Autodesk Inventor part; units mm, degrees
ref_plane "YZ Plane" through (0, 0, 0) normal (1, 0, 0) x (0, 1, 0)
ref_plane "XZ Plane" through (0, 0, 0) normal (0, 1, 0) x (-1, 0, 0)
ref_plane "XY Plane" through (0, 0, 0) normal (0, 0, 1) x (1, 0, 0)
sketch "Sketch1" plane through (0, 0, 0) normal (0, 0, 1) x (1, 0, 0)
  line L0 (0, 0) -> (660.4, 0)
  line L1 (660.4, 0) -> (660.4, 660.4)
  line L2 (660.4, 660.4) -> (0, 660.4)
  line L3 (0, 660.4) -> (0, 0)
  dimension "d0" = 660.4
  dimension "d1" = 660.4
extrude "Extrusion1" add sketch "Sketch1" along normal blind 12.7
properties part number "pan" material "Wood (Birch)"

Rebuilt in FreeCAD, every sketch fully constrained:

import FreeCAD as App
import Part
import Sketcher
Q = App.Units.Quantity


def add_polygon(sketch, points):
    """Adds a closed chain of lines whose ends are joined by coincident constraints."""
    first, n = sketch.GeometryCount, len(points)
    for a, b in zip(points, points[1:] + points[:1]):
        sketch.addGeometry(Part.LineSegment(App.Vector(*a, 0), App.Vector(*b, 0)), False)
    for i in range(n):
        sketch.addConstraint(Sketcher.Constraint("Coincident", first + i, 2, first + (i + 1) % n, 1))

doc = App.newDocument("Part")
body = doc.addObject("PartDesign::Body", "Body")

# Sketch on XY plane
sketch1 = body.newObject("Sketcher::SketchObject", "Sketch")
sketch1.AttachmentSupport = (doc.getObject("XY_Plane"), [""])
sketch1.MapMode = "FlatFace"
add_polygon(sketch1, [(0, 660), (0, 0), (660, 0), (660, 660)])  # lines 0-3
sketch1.addConstraint(Sketcher.Constraint("Vertical", 0))
sketch1.addConstraint(Sketcher.Constraint("Horizontal", 1))
sketch1.addConstraint(Sketcher.Constraint("Vertical", 2))
sketch1.addConstraint(Sketcher.Constraint("Horizontal", 3))
sketch1.addConstraint(Sketcher.Constraint("Coincident", 0, 2, -1, 1))
sketch1.addConstraint(Sketcher.Constraint("Equal", 3, 0))
sketch1.addConstraint(Sketcher.Constraint("DistanceX", 1, 1, 1, 2, Q("26 in")))
pad1 = body.newObject("PartDesign::Pad", "Pad")
pad1.Profile = sketch1
pad1.Length = Q("0.5 in")

doc.recompute()
